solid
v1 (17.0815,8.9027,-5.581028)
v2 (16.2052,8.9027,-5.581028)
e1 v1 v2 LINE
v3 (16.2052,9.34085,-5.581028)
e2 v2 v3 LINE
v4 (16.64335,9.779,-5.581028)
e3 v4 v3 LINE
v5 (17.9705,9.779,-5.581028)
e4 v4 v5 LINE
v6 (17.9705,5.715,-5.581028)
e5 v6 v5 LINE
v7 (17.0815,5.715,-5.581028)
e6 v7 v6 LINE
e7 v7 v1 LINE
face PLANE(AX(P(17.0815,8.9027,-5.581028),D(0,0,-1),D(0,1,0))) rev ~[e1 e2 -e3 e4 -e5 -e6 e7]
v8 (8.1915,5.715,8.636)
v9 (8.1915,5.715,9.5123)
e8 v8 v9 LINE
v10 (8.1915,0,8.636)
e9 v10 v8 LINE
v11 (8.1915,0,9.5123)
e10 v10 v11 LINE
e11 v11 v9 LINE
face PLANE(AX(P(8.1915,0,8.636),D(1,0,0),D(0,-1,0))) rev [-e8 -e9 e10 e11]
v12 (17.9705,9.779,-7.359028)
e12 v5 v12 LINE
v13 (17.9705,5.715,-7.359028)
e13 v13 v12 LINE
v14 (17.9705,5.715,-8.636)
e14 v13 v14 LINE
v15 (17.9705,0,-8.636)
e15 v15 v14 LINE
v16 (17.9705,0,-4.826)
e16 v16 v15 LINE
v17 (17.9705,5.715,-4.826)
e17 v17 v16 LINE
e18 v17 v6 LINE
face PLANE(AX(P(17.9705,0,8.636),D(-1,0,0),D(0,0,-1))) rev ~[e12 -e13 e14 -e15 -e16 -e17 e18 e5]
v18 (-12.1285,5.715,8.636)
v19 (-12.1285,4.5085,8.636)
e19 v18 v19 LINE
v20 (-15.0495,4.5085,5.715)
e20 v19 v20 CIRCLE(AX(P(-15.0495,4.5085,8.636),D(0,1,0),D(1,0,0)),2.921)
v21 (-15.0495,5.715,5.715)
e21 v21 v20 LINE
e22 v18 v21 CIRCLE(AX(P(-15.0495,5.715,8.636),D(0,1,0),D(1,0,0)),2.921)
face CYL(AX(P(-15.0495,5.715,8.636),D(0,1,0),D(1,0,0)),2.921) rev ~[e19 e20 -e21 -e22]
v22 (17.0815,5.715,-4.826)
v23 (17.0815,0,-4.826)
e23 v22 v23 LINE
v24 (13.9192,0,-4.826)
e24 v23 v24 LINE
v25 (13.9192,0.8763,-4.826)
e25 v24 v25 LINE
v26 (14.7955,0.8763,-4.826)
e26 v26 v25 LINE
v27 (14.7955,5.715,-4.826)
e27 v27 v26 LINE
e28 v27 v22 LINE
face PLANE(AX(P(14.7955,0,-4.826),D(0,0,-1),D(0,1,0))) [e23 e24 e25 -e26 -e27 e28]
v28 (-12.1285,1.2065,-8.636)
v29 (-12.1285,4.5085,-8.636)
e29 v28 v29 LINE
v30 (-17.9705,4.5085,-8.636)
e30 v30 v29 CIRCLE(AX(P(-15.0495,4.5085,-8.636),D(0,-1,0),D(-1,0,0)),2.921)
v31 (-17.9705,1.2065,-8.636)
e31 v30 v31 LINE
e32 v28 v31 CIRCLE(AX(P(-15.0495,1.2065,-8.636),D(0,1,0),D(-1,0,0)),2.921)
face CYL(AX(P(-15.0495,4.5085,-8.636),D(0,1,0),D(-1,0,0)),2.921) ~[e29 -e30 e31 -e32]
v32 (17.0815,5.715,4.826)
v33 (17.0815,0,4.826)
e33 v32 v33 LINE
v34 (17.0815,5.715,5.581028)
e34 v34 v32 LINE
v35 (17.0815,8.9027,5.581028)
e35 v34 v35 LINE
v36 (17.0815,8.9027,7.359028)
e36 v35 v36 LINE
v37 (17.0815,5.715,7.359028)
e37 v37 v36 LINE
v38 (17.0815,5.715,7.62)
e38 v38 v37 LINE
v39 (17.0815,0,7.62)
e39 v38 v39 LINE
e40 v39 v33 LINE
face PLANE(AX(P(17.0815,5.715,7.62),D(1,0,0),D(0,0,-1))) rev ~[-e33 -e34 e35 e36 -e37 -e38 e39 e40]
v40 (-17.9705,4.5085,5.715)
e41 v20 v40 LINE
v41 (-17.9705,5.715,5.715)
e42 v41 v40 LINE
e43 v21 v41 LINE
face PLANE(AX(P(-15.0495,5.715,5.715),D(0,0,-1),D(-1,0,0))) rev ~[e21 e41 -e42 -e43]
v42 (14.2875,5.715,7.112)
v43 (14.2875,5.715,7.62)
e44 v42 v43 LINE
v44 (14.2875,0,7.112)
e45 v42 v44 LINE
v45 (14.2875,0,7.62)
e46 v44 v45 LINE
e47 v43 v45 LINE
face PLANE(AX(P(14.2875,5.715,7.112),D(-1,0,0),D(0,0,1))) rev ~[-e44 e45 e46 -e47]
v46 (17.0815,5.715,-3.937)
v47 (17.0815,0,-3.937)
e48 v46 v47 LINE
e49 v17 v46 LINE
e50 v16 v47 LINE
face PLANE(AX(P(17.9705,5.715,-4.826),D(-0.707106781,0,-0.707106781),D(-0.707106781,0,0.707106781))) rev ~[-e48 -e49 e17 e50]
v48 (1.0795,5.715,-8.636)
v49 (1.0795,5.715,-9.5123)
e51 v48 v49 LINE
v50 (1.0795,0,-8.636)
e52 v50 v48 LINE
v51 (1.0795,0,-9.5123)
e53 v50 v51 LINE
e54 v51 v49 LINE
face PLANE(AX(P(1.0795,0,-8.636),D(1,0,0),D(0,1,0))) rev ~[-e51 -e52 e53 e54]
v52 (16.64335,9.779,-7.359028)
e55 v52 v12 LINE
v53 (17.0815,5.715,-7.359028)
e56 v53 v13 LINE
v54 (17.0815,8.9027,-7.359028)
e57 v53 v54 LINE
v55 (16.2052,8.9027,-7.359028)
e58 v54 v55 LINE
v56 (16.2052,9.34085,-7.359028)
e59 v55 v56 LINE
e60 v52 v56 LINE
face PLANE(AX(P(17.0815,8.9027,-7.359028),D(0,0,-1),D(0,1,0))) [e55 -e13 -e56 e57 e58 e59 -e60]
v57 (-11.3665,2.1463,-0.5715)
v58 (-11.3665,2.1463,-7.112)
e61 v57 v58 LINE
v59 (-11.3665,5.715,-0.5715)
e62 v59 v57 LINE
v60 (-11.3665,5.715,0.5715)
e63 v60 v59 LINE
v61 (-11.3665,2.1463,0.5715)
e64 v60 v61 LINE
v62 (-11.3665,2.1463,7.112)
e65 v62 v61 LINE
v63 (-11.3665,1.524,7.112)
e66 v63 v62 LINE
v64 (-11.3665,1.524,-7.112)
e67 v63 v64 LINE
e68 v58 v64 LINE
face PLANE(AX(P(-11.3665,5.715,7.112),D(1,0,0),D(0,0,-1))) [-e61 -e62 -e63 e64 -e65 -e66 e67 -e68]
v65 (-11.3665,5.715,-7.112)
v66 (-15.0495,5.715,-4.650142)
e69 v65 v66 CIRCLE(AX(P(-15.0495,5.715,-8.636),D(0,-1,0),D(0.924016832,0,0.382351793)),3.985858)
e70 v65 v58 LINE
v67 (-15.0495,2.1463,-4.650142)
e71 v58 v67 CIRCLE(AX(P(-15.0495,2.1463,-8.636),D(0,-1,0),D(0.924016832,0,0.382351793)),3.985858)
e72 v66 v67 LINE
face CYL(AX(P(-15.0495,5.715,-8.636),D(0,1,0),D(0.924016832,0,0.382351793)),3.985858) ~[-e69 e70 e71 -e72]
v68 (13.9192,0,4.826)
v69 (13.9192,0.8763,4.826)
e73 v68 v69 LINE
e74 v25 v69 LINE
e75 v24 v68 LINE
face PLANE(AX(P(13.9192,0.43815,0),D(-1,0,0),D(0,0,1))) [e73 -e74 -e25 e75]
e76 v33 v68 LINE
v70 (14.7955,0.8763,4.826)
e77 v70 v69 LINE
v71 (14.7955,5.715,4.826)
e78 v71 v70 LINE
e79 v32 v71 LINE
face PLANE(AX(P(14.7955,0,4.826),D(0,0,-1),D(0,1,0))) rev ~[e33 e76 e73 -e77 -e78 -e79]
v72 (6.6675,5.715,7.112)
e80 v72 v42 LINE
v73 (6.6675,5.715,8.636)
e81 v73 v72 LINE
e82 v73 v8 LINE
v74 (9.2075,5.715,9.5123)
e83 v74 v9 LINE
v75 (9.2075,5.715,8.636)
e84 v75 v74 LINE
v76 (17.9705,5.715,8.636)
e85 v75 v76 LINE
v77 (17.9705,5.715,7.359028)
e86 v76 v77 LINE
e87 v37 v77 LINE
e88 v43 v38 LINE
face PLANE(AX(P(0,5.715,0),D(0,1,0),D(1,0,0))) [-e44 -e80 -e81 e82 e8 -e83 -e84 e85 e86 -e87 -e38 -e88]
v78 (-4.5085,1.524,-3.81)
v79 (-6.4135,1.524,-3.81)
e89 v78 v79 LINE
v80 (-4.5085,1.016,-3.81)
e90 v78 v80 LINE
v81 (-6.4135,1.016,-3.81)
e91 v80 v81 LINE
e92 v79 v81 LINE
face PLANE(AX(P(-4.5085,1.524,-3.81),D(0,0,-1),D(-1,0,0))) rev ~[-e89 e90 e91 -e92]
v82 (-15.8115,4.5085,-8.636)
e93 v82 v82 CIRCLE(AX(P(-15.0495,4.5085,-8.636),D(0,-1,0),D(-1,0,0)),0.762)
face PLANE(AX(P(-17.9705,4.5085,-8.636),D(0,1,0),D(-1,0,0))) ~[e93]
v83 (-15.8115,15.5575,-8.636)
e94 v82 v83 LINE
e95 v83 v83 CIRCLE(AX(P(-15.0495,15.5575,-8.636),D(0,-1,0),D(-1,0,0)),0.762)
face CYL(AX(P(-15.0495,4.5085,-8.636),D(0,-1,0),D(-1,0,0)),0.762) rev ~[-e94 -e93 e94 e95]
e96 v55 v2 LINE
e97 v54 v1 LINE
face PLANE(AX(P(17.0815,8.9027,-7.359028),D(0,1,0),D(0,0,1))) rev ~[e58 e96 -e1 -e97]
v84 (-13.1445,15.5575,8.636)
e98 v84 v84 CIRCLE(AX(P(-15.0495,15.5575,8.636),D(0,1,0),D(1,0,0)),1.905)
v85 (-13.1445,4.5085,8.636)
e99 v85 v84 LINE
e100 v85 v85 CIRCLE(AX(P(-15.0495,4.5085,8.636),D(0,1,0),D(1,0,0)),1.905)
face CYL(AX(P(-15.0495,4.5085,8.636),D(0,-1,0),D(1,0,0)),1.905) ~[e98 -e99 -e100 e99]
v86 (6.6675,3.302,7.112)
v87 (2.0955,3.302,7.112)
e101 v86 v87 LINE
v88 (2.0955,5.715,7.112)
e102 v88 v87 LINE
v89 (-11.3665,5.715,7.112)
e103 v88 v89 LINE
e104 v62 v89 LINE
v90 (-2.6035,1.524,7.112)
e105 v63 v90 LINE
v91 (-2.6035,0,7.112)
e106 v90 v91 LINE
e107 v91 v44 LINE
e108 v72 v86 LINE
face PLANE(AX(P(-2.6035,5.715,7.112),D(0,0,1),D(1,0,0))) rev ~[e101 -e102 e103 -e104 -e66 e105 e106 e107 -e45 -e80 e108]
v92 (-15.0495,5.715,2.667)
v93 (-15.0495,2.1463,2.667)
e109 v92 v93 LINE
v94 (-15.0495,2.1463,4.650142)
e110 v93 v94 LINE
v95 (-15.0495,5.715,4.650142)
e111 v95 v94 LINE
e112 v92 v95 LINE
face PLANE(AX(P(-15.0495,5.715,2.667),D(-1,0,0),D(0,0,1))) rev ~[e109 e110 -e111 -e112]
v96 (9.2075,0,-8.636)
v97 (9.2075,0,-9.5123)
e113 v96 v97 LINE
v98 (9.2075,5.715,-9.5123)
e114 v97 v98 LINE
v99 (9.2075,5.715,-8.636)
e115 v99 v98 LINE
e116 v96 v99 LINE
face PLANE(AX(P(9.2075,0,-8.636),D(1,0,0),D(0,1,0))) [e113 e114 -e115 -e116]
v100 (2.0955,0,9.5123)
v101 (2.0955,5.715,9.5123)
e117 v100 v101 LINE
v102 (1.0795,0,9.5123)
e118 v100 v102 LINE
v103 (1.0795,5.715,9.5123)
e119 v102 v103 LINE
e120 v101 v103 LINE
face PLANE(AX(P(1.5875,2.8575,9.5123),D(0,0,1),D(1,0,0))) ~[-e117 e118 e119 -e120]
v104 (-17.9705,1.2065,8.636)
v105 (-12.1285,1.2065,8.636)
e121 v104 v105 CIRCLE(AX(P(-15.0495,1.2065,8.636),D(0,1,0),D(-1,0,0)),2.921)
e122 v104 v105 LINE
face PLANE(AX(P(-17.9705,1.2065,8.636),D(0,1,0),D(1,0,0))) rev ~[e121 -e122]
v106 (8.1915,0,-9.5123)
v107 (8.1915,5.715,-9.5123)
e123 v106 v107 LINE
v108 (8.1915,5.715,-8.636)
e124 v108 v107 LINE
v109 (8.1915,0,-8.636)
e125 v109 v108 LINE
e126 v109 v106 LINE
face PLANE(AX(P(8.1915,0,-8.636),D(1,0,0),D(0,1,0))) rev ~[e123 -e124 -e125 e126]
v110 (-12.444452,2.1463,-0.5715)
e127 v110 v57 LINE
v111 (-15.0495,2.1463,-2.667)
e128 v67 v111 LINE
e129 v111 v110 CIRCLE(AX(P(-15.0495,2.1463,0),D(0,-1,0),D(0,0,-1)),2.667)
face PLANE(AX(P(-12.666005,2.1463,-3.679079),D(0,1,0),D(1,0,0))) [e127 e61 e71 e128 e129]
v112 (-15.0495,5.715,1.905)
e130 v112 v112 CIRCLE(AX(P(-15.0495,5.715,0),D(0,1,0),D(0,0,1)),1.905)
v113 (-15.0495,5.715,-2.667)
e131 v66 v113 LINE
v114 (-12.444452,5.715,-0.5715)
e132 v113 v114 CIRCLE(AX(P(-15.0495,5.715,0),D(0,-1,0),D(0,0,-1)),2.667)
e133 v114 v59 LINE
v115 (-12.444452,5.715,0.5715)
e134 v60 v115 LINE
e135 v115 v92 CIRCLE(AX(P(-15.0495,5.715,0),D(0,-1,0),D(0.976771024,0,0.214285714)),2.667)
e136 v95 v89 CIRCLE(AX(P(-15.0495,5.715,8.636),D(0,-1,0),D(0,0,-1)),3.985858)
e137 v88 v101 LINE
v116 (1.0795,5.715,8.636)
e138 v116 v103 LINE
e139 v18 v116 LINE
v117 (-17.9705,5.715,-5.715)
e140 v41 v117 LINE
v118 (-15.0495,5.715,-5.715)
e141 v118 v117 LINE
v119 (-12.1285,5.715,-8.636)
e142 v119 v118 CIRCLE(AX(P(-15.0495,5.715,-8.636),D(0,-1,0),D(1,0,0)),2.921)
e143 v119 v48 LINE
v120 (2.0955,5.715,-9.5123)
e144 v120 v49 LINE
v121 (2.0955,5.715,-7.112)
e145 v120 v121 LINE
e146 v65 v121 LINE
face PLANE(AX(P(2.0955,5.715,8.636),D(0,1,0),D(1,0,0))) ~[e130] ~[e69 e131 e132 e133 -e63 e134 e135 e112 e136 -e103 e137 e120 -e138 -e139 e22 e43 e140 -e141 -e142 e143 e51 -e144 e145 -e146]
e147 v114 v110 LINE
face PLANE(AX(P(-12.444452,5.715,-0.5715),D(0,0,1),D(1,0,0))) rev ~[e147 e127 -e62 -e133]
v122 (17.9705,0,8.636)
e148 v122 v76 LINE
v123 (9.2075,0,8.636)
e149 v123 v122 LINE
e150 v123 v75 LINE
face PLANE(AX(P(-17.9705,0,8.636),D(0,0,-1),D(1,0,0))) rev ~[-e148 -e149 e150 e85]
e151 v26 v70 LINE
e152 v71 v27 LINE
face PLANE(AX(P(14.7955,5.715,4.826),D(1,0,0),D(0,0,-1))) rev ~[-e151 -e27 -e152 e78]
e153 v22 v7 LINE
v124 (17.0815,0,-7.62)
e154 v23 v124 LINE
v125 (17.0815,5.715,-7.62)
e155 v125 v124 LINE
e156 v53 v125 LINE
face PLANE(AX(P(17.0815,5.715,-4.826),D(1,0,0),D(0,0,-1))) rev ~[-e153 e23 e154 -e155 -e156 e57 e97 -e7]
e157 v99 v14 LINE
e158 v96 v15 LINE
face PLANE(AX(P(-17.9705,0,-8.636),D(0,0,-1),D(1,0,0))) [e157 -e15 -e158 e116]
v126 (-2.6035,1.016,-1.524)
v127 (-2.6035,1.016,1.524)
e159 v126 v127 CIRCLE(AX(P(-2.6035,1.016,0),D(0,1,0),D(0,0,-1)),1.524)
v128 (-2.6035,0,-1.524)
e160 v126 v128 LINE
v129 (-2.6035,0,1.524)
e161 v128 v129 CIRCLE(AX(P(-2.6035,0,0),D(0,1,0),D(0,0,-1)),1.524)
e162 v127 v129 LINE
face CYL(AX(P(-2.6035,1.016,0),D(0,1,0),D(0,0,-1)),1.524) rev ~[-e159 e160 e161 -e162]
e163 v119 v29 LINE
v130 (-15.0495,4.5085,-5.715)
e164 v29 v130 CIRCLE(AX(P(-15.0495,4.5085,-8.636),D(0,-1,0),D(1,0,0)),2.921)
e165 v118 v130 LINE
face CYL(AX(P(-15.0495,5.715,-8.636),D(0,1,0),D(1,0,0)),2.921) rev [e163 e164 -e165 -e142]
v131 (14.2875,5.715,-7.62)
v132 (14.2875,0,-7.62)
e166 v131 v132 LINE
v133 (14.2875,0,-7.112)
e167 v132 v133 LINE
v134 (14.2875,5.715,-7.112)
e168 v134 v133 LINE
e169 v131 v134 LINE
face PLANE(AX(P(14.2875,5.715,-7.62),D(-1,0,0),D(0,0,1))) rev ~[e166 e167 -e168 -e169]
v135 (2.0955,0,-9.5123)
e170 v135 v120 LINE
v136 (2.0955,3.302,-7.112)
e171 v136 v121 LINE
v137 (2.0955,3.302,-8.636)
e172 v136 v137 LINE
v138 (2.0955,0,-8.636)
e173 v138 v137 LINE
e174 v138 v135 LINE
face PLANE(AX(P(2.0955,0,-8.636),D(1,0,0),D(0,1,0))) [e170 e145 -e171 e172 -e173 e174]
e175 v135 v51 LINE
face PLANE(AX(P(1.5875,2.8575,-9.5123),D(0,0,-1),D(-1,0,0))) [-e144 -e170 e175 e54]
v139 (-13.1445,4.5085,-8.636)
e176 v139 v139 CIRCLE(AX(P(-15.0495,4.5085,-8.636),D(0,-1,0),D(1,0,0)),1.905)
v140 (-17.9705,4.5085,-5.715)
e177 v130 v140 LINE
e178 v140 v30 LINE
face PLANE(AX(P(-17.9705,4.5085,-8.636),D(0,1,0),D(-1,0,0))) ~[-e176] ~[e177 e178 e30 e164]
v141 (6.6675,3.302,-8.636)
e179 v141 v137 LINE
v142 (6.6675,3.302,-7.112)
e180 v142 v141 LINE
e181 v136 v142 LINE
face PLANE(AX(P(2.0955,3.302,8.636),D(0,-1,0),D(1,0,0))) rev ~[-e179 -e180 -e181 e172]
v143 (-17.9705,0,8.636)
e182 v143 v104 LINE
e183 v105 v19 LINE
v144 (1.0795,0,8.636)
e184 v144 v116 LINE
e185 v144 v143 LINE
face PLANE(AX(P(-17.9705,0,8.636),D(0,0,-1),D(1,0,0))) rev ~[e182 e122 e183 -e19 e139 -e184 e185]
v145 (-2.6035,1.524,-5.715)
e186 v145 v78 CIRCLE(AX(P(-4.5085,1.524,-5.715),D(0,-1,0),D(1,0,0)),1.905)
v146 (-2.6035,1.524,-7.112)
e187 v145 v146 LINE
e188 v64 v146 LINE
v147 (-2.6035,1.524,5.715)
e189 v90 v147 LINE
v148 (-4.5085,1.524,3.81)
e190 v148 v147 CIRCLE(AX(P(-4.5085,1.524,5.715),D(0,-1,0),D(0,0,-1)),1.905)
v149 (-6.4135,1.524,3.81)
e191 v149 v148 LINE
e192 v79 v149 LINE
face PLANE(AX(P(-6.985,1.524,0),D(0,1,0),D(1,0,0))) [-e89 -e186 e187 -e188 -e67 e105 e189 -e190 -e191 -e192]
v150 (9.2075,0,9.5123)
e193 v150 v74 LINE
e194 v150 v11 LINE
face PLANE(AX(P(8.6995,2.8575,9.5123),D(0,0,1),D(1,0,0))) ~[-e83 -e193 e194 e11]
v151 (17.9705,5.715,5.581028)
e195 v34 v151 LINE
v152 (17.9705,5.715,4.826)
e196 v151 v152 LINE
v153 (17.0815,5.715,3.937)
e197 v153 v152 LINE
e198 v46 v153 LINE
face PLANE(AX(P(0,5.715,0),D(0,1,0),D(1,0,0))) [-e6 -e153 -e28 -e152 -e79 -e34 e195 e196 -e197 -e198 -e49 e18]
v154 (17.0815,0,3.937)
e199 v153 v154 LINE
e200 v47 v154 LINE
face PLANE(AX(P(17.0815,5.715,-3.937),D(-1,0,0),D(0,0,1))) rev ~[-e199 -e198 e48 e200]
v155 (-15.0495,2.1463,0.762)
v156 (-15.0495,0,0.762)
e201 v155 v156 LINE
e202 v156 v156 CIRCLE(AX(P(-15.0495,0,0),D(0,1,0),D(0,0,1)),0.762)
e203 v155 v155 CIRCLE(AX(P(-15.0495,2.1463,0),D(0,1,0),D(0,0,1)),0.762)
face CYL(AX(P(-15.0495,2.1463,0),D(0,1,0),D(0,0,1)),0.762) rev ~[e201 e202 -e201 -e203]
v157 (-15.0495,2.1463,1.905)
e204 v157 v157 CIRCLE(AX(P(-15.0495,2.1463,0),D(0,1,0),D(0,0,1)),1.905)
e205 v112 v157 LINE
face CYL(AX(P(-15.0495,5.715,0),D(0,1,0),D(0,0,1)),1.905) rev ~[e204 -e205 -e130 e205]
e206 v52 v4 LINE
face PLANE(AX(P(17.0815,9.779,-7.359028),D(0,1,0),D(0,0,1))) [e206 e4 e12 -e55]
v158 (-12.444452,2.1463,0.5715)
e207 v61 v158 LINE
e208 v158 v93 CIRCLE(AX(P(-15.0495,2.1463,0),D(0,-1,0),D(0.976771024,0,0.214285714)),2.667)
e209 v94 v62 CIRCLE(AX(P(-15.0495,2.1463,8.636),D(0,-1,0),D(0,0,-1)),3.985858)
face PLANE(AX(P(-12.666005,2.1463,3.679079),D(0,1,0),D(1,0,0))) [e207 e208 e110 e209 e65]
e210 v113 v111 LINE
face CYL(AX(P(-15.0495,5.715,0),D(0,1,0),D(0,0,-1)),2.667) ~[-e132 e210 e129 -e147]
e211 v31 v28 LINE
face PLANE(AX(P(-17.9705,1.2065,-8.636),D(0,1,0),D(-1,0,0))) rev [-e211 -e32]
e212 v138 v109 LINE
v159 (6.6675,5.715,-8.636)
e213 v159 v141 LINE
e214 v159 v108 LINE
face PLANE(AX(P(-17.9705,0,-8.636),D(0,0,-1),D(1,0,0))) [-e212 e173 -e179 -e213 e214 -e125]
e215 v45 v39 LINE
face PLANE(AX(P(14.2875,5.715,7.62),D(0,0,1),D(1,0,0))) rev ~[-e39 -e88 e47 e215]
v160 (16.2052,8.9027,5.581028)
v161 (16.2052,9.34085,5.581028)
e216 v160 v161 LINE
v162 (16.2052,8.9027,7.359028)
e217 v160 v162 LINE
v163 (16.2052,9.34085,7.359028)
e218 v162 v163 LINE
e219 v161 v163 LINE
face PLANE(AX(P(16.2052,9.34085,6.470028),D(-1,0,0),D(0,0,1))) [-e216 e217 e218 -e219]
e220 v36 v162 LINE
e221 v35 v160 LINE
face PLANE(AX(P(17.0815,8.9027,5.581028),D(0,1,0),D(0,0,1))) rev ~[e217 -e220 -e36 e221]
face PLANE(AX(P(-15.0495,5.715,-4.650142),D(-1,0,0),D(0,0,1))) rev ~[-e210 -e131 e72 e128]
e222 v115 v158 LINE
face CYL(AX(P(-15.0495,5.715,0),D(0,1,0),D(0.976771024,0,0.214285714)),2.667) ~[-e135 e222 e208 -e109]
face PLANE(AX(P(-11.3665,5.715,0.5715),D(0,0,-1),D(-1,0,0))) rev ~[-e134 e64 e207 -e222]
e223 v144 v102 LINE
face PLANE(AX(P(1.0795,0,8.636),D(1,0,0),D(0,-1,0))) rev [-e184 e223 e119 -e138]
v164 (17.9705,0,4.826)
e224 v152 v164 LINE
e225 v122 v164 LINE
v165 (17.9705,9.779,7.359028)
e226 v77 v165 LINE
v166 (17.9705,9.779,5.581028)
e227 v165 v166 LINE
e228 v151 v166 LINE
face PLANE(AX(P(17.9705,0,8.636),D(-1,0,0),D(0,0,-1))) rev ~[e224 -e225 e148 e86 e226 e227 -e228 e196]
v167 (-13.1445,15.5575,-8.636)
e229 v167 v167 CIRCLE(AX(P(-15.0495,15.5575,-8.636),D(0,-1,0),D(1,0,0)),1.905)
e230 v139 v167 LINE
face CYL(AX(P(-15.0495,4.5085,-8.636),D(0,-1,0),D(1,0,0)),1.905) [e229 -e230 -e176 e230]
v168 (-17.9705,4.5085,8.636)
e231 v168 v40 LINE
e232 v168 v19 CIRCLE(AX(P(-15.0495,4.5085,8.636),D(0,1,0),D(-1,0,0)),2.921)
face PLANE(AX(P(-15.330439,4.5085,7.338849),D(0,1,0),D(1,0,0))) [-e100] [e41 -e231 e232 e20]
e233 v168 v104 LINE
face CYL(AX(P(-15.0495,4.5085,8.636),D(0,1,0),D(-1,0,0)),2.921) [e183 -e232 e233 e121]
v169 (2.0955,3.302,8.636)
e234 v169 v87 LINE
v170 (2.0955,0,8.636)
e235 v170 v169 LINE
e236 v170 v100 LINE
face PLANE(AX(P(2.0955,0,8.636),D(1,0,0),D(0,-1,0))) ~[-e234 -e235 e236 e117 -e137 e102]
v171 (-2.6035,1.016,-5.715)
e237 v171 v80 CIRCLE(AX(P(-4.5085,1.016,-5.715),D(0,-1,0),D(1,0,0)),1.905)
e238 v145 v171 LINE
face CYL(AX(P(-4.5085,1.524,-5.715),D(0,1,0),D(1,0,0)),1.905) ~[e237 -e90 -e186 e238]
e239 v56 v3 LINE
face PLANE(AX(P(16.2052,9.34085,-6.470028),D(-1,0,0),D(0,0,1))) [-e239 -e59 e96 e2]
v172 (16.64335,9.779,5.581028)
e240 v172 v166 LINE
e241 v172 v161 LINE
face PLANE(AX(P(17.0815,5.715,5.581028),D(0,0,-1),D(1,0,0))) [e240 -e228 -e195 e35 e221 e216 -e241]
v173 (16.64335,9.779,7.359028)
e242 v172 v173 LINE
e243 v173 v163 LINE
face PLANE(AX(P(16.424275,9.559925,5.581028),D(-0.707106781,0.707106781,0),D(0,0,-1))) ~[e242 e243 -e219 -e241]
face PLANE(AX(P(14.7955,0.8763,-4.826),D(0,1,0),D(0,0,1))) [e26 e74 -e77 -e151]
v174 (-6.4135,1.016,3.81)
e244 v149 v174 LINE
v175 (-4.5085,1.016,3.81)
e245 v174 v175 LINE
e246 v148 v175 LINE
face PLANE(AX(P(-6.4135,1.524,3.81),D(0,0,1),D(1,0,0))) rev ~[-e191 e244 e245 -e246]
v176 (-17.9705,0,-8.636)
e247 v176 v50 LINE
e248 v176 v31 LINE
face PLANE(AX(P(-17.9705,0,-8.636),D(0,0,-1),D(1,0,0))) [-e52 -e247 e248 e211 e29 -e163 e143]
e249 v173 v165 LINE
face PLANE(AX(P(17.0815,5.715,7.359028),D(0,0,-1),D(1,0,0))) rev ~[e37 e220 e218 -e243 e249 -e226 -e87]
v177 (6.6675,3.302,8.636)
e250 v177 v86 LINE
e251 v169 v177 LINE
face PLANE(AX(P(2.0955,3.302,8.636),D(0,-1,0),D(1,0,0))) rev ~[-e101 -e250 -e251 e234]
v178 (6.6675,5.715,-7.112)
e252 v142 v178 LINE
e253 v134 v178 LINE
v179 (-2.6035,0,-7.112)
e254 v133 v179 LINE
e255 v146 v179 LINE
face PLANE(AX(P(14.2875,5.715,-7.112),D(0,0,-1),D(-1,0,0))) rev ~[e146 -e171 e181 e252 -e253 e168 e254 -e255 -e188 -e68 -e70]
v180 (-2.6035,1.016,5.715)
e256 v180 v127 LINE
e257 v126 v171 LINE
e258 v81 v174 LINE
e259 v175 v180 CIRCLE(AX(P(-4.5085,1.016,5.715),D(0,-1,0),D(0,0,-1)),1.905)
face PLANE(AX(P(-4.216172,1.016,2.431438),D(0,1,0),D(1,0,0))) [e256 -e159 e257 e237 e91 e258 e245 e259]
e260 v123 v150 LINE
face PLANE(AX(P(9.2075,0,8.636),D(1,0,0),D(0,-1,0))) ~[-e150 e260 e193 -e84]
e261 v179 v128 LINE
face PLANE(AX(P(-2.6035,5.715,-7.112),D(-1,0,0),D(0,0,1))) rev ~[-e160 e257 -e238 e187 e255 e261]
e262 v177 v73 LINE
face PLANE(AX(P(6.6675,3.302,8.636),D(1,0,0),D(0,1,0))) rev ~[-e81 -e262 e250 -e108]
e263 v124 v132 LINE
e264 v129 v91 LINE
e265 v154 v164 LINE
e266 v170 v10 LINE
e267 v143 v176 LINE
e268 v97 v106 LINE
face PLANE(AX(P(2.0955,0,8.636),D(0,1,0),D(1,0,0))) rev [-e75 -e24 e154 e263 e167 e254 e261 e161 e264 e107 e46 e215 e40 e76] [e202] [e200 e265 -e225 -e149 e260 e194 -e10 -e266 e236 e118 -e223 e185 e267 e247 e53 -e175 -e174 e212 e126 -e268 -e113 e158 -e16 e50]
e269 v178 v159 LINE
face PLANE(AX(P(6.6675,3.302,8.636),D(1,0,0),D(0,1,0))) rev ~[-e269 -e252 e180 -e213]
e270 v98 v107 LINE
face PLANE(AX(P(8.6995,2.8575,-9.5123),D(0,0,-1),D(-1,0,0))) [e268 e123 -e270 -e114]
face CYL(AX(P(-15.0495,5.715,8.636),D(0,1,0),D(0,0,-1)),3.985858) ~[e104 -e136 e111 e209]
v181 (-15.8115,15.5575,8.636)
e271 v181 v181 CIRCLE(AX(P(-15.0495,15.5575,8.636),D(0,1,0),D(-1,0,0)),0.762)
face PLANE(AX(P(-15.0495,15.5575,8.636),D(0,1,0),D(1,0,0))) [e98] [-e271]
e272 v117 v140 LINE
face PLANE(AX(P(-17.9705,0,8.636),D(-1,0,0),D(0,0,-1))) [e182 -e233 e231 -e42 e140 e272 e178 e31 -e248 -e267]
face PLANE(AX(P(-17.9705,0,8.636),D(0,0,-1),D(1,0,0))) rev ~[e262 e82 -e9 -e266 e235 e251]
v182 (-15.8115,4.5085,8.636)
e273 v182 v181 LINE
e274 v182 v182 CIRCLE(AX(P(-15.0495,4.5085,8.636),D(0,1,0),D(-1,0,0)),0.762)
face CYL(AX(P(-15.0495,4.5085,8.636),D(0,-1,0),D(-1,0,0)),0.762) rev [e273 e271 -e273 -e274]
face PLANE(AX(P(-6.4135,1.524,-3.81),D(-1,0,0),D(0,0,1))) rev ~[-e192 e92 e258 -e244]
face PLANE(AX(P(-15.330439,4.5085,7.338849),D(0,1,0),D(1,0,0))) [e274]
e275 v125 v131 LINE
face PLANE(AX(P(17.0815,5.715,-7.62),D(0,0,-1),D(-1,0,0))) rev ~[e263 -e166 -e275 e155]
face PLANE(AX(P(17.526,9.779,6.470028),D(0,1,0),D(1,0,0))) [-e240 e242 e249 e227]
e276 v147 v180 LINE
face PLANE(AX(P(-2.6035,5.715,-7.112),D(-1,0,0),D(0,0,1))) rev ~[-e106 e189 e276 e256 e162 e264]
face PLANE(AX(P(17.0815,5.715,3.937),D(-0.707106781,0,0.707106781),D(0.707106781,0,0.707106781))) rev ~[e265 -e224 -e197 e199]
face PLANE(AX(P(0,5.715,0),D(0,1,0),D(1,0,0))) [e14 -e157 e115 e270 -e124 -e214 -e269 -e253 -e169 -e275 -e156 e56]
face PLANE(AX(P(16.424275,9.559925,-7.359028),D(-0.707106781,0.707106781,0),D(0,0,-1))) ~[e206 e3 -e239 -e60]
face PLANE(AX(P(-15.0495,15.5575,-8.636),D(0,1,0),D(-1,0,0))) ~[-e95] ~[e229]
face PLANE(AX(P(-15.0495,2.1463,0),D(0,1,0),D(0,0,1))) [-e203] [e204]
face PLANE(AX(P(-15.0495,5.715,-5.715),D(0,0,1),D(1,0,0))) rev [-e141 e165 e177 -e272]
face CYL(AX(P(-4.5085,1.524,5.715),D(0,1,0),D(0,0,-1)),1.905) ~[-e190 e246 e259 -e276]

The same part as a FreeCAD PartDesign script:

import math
import FreeCAD as App
import Part
import Sketcher
from FreeCAD import Vector
Q = App.Units.Quantity


def edges_at(feature, points):
    """Names of the edges that pass closest to the given points."""
    edges = feature.Shape.Edges
    near = lambda p: min(range(len(edges)), key=lambda i: edges[i].distToShape(Part.Vertex(*p))[0])
    return sorted({f"Edge{near(p) + 1}" for p in points})


def add_polygon(sketch, points):
    """Adds a closed chain of lines whose ends are joined by coincident constraints."""
    first, n = sketch.GeometryCount, len(points)
    for a, b in zip(points, points[1:] + points[:1]):
        sketch.addGeometry(Part.LineSegment(App.Vector(*a, 0), App.Vector(*b, 0)), False)
    for i in range(n):
        sketch.addConstraint(Sketcher.Constraint("Coincident", first + i, 2, first + (i + 1) % n, 1))

doc = App.newDocument("Part")
body = doc.addObject("PartDesign::Body", "Body")

sketch1 = doc.addObject("Sketcher::SketchObject", "Sketch")
body.addObject(sketch1)
sketch1.AttachmentSupport = (doc.XZ_Plane, [""])
sketch1.MapMode = "FlatFace"
add_polygon(sketch1, [(-17.9705, -8.636), (-17.9705, 8.636), (17.9705, 8.636), (17.9705, -8.636)])
sketch1.addConstraint([
    Sketcher.Constraint("Vertical", 0),
    Sketcher.Constraint("Horizontal", 1),
    Sketcher.Constraint("Vertical", 2),
    Sketcher.Constraint("Horizontal", 3),
    Sketcher.Constraint("Symmetric", 0, 2, 2, 2, -1, 1),
    Sketcher.Constraint("DistanceY", 0, 1, 0, 2, Q("0.68 in")),
    Sketcher.Constraint("DistanceX", 1, 1, 1, 2, Q("1.415 in")),
])
pad1 = doc.addObject("PartDesign::Pad", "Pad")
body.addObject(pad1)
pad1.Profile = sketch1
pad1.Length = Q("0.225 in")
pad1.Reversed = True

sketch2 = doc.addObject("Sketcher::SketchObject", "Sketch001")
body.addObject(sketch2)
sketch2.AttachmentSupport = (doc.XY_Plane, [""])
sketch2.MapMode = "FlatFace"
sketch2.AttachmentOffset = App.Placement(Vector(0, 0, 0.34 * 25.4), App.Rotation())
add_polygon(sketch2, [(2.0955, 5.715), (2.0955, 3.302), (6.6675, 3.302), (6.6675, 5.715)])
sketch2.addConstraint([
    Sketcher.Constraint("Vertical", 0),
    Sketcher.Constraint("Horizontal", 1),
    Sketcher.Constraint("Vertical", 2),
    Sketcher.Constraint("Horizontal", 3),
    Sketcher.Constraint("DistanceX", 1, 1, 1, 2, Q("0.18 in")),
    Sketcher.Constraint("DistanceY", 0, 2, 0, 1, Q("0.095 in")),
    Sketcher.Constraint("DistanceY", -1, 1, 0, 2, Q("0.13 in")),
    Sketcher.Constraint("DistanceX", -1, 1, 0, 2, Q("0.0825 in")),
])
pocket1 = doc.addObject("PartDesign::Pocket", "Pocket")
body.addObject(pocket1)
pocket1.Profile = sketch2
pocket1.Type = "ThroughAll"

sketch3 = doc.addObject("Sketcher::SketchObject", "Sketch002")
body.addObject(sketch3)
sketch3.AttachmentSupport = (doc.XZ_Plane, [""])
sketch3.MapMode = "FlatFace"
sketch3.AttachmentOffset = App.Placement(Vector(0, 0, -0.225 * 25.4), App.Rotation())
add_polygon(sketch3, [(-2.6035, -7.112), (-2.6035, 7.112), (14.2875, 7.112), (14.2875, 7.62), (17.0815, 7.62), (17.0815, 4.826), (14.7955, 4.826), (14.7955, -4.826), (17.0815, -4.826), (17.0815, -7.62), (14.2875, -7.62), (14.2875, -7.112)])
add_polygon(sketch3, [(17.0815, 3.937), (17.9705, 4.826), (17.9705, -4.826), (17.0815, -3.937)])
sketch3.addConstraint([
    Sketcher.Constraint("Vertical", 0),
    Sketcher.Constraint("Horizontal", 1),
    Sketcher.Constraint("Vertical", 2),
    Sketcher.Constraint("Horizontal", 3),
    Sketcher.Constraint("Vertical", 4),
    Sketcher.Constraint("Horizontal", 5),
    Sketcher.Constraint("Vertical", 6),
    Sketcher.Constraint("Horizontal", 7),
    Sketcher.Constraint("Vertical", 8),
    Sketcher.Constraint("Horizontal", 9),
    Sketcher.Constraint("Vertical", 10),
    Sketcher.Constraint("Horizontal", 11),
    Sketcher.Constraint("Vertical", 13),
    Sketcher.Constraint("Vertical", 15),
    Sketcher.Constraint("Symmetric", 4, 2, 7, 2, -1),
    Sketcher.Constraint("Symmetric", 2, 2, 9, 2, -1),
    Sketcher.Constraint("Perpendicular", 12, 14),
    Sketcher.Constraint("Horizontal", 5, 2, 12, 2),
    Sketcher.Constraint("Horizontal", 7, 2, 13, 2),
    Sketcher.Constraint("Vertical", 8, 2, 14, 2),
    Sketcher.Constraint("Equal", 9, 4),
    Sketcher.Constraint("Equal", 2, 10),
    Sketcher.Constraint("Equal", 12, 14),
    Sketcher.Constraint("DistanceX", 3, 1, 3, 2, Q("0.11 in")),
    Sketcher.Constraint("DistanceX", 5, 2, 5, 1, Q("0.09 in")),
    Sketcher.Constraint("DistanceY", 0, 1, 0, 2, Q("0.56 in")),
    Sketcher.Constraint("DistanceY", 2, 1, 2, 2, Q("0.02 in")),
    Sketcher.Constraint("DistanceY", 15, 1, 15, 2, Q("0.31 in")),
    Sketcher.Constraint("DistanceX", 1, 1, 1, 2, Q("0.665 in")),
    Sketcher.Constraint("DistanceX", -1, 1, 1, 2, Q("0.5625 in")),
])
pocket2 = doc.addObject("PartDesign::Pocket", "Pocket001")
body.addObject(pocket2)
pocket2.Profile = sketch3
pocket2.Type = "ThroughAll"
pocket2.Reversed = True

sketch4 = doc.addObject("Sketcher::SketchObject", "Sketch003")
body.addObject(sketch4)
sketch4.AttachmentSupport = (doc.XZ_Plane, [""])
sketch4.MapMode = "FlatFace"
sketch4.AttachmentOffset = App.Placement(Vector(0, 0, -0.225 * 25.4), App.Rotation())
add_polygon(sketch4, [(-11.3665, -7.112), (-11.3665, 7.112), (-2.6035, 7.112), (-2.6035, -7.112)])
sketch4.addConstraint([
    Sketcher.Constraint("Vertical", 0),
    Sketcher.Constraint("Horizontal", 1),
    Sketcher.Constraint("Vertical", 2),
    Sketcher.Constraint("Horizontal", 3),
    Sketcher.Constraint("DistanceY", 0, 1, 0, 2, Q("0.56 in")),
    Sketcher.Constraint("DistanceX", 1, 1, 1, 2, Q("0.345 in")),
    Sketcher.Constraint("DistanceY", -1, 1, 0, 2, Q("0.28 in")),
    Sketcher.Constraint("DistanceX", 0, 2, -1, 1, Q("0.4475 in")),
])
pocket3 = doc.addObject("PartDesign::Pocket", "Pocket002")
body.addObject(pocket3)
pocket3.Profile = sketch4
pocket3.Length = Q("0.1 in")
pocket3.Reversed = True

sketch5 = doc.addObject("Sketcher::SketchObject", "Sketch004")
body.addObject(sketch5)
sketch5.AttachmentSupport = (doc.XZ_Plane, [""])
sketch5.MapMode = "FlatFace"
sketch5.AttachmentOffset = App.Placement(Vector(0, 0, -0.225 * 25.4), App.Rotation())
add_polygon(sketch5, [(-11.3665, -7.112), (-11.3665, 7.112), (-2.6035, 7.112), (-2.6035, -7.112)])
sketch5.addConstraint([
    Sketcher.Constraint("Vertical", 0),
    Sketcher.Constraint("Horizontal", 1),
    Sketcher.Constraint("Vertical", 2),
    Sketcher.Constraint("Horizontal", 3),
    Sketcher.Constraint("DistanceY", 0, 1, 0, 2, Q("0.56 in")),
    Sketcher.Constraint("DistanceX", 1, 1, 1, 2, Q("0.345 in")),
    Sketcher.Constraint("DistanceY", -1, 1, 0, 2, Q("0.28 in")),
    Sketcher.Constraint("DistanceX", 0, 2, -1, 1, Q("0.4475 in")),
])
pocket4 = doc.addObject("PartDesign::Pocket", "Pocket003")
body.addObject(pocket4)
pocket4.Profile = sketch5
pocket4.Length = Q("0.165 in")
pocket4.Reversed = True

sketch6 = doc.addObject("Sketcher::SketchObject", "Sketch005")
body.addObject(sketch6)
sketch6.AttachmentSupport = (doc.YZ_Plane, [""])
sketch6.MapMode = "FlatFace"
sketch6.AttachmentOffset = App.Placement(Vector(0, 0, 0.5825 * 25.4), App.Rotation())
add_polygon(sketch6, [(0.8763, -4.826), (0, -4.826), (0, 4.826), (0.8763, 4.826)])
sketch6.addConstraint([
    Sketcher.Constraint("Horizontal", 0),
    Sketcher.Constraint("Vertical", 1),
    Sketcher.Constraint("Horizontal", 2),
    Sketcher.Constraint("Vertical", 3),
    Sketcher.Constraint("Symmetric", 0, 2, 1, 2, -1, 1),
    Sketcher.Constraint("DistanceY", 1, 1, 1, 2, Q("0.38 in")),
    Sketcher.Constraint("DistanceX", 0, 2, 0, 1, Q("0.0345 in")),
])
pad2 = doc.addObject("PartDesign::Pad", "Pad001")
body.addObject(pad2)
pad2.Profile = sketch6
pad2.Length = Q("0.0345 in")
pad2.Reversed = True

sketch7 = doc.addObject("Sketcher::SketchObject", "Sketch006")
body.addObject(sketch7)
sketch7.AttachmentSupport = (doc.XZ_Plane, [""])
sketch7.MapMode = "FlatFace"
sketch7.AttachmentOffset = App.Placement(Vector(0, 0, -0.225 * 25.4), App.Rotation())
add_polygon(sketch7, [(17.0815, -7.359028), (17.0815, -5.581028), (17.9705, -5.581028), (17.9705, -7.359028)])
add_polygon(sketch7, [(17.0815, 5.581028), (17.0815, 7.359028), (17.9705, 7.359028), (17.9705, 5.581028)])
sketch7.addConstraint([
    Sketcher.Constraint("Vertical", 0),
    Sketcher.Constraint("Horizontal", 1),
    Sketcher.Constraint("Vertical", 2),
    Sketcher.Constraint("Horizontal", 3),
    Sketcher.Constraint("Vertical", 4),
    Sketcher.Constraint("Horizontal", 5),
    Sketcher.Constraint("Vertical", 6),
    Sketcher.Constraint("Horizontal", 7),
    Sketcher.Constraint("Symmetric", 3, 2, 4, 2, -1),
    Sketcher.Constraint("Symmetric", 1, 2, 6, 2, -1),
    Sketcher.Constraint("DistanceY", 0, 1, 0, 2, Q("0.07 in")),
    Sketcher.Constraint("DistanceX", 1, 1, 1, 2, Q("0.035 in")),
    Sketcher.Constraint("DistanceX", -1, 1, 0, 2, Q("0.6725 in")),
    Sketcher.Constraint("DistanceY", 0, 2, -1, 1, 5.581028),
])
pad3 = doc.addObject("PartDesign::Pad", "Pad002")
body.addObject(pad3)
pad3.Profile = sketch7
pad3.Length = Q("0.16 in")
pad3.Reversed = True

sketch8 = doc.addObject("Sketcher::SketchObject", "Sketch007")
body.addObject(sketch8)
sketch8.AttachmentSupport = (doc.YZ_Plane, [""])
sketch8.MapMode = "FlatFace"
sketch8.AttachmentOffset = App.Placement(Vector(0, 0, 0.6725 * 25.4), App.Rotation())
add_polygon(sketch8, [(9.779, -7.359028), (8.9027, -7.359028), (8.9027, -5.581028), (9.779, -5.581028)])
add_polygon(sketch8, [(9.779, 5.581028), (8.9027, 5.581028), (8.9027, 7.359028), (9.779, 7.359028)])
sketch8.addConstraint([
    Sketcher.Constraint("Horizontal", 0),
    Sketcher.Constraint("Vertical", 1),
    Sketcher.Constraint("Horizontal", 2),
    Sketcher.Constraint("Vertical", 3),
    Sketcher.Constraint("Horizontal", 4),
    Sketcher.Constraint("Vertical", 5),
    Sketcher.Constraint("Horizontal", 6),
    Sketcher.Constraint("Vertical", 7),
    Sketcher.Constraint("Symmetric", 1, 2, 4, 2, -1),
    Sketcher.Constraint("Symmetric", 3, 2, 6, 2, -1),
    Sketcher.Constraint("DistanceY", 1, 1, 1, 2, Q("0.07 in")),
    Sketcher.Constraint("DistanceX", 0, 2, 0, 1, Q("0.0345 in")),
    Sketcher.Constraint("DistanceX", -1, 1, 2, 2, Q("0.385 in")),
    Sketcher.Constraint("DistanceY", 0, 2, -1, 1, 7.359028),
])
pad4 = doc.addObject("PartDesign::Pad", "Pad003")
body.addObject(pad4)
pad4.Profile = sketch8
pad4.Length = Q("0.0345 in")
pad4.Reversed = True
doc.recompute()

chamfer = doc.addObject("PartDesign::Chamfer", "Chamfer")
body.addObject(chamfer)
chamfer.Base = (pad4, edges_at(pad4, [(16.205, 9.779, -6.47), (16.205, 9.779, 6.47)]))
chamfer.Size = 0.43815

sketch9 = doc.addObject("Sketcher::SketchObject", "Sketch008")
body.addObject(sketch9)
sketch9.AttachmentSupport = (doc.XY_Plane, [""])
sketch9.MapMode = "FlatFace"
sketch9.AttachmentOffset = App.Placement(Vector(0, 0, -0.34 * 25.4), App.Rotation())
add_polygon(sketch9, [(2.0955, 5.715), (2.0955, 0), (1.0795, 0), (1.0795, 5.715)])
add_polygon(sketch9, [(9.2075, 5.715), (9.2075, 0), (8.1915, 0), (8.1915, 5.715)])
sketch9.addConstraint([
    Sketcher.Constraint("Vertical", 0),
    Sketcher.Constraint("Horizontal", 1),
    Sketcher.Constraint("Vertical", 2),
    Sketcher.Constraint("Horizontal", 3),
    Sketcher.Constraint("Vertical", 4),
    Sketcher.Constraint("Horizontal", 5),
    Sketcher.Constraint("Vertical", 6),
    Sketcher.Constraint("Horizontal", 7),
    Sketcher.Constraint("PointOnObject", 0, 2, -1),
    Sketcher.Constraint("PointOnObject", 4, 2, -1),
    Sketcher.Constraint("Horizontal", 3, 2, 6, 2),
    Sketcher.Constraint("Equal", 3, 5),
    Sketcher.Constraint("DistanceX", 1, 2, 1, 1, Q("0.04 in")),
    Sketcher.Constraint("DistanceY", 0, 2, 0, 1, Q("0.225 in")),
    Sketcher.Constraint("DistanceX", 0, 2, 4, 2, Q("0.28 in")),
    Sketcher.Constraint("DistanceX", -1, 1, 0, 2, Q("0.0825 in")),
])
pad5 = doc.addObject("PartDesign::Pad", "Pad004")
body.addObject(pad5)
pad5.Profile = sketch9
pad5.Length = Q("0.0345 in")
pad5.Reversed = True
doc.recompute()

mirrored = doc.addObject("PartDesign::Mirrored", "Mirrored")
body.addObject(mirrored)
mirrored.Originals = [pad5]
mirrored.MirrorPlane = (doc.XY_Plane, [""])
body.Tip = mirrored

sketch10 = doc.addObject("Sketcher::SketchObject", "Sketch009")
body.addObject(sketch10)
sketch10.AttachmentSupport = (doc.XZ_Plane, [""])
sketch10.MapMode = "FlatFace"
sketch10.AttachmentOffset = App.Placement(Vector(0, 0, -0.06 * 25.4), App.Rotation())
sketch10.addGeometry([
    Part.LineSegment(Vector(-2.6035, 5.715, 0), Vector(-2.6035, -5.715, 0)),
    Part.ArcOfCircle(Part.Circle(Vector(-4.5085, -5.715, 0), Vector(0, 0, 1), 1.905), math.radians(0), math.radians(90)),
    Part.LineSegment(Vector(-4.5085, -3.81, 0), Vector(-6.4135, -3.81, 0)),
    Part.LineSegment(Vector(-6.4135, -3.81, 0), Vector(-6.4135, 3.81, 0)),
    Part.LineSegment(Vector(-6.4135, 3.81, 0), Vector(-4.5085, 3.81, 0)),
    Part.ArcOfCircle(Part.Circle(Vector(-4.5085, 5.715, 0), Vector(0, 0, 1), 1.905), math.radians(-90), math.radians(0)),
], False)
sketch10.addConstraint([
    Sketcher.Constraint("Tangent", 0, 2, 1, 1),
    Sketcher.Constraint("Tangent", 1, 2, 2, 1),
    Sketcher.Constraint("Coincident", 2, 2, 3, 1),
    Sketcher.Constraint("Coincident", 3, 2, 4, 1),
    Sketcher.Constraint("Tangent", 4, 2, 5, 1),
    Sketcher.Constraint("Tangent", 5, 2, 0, 1),
    Sketcher.Constraint("Vertical", 0),
    Sketcher.Constraint("Horizontal", 2),
    Sketcher.Constraint("Vertical", 3),
    Sketcher.Constraint("Horizontal", 4),
    Sketcher.Constraint("Equal", 1, 5),
    Sketcher.Constraint("DistanceY", 3, 1, 3, 2, Q("0.3 in")),
    Sketcher.Constraint("Radius", 1, Q("0.075 in")),
    Sketcher.Constraint("DistanceX", 2, 2, 2, 1, Q("0.075 in")),
    Sketcher.Constraint("DistanceY", 1, 2, -1, 1, Q("0.15 in")),
    Sketcher.Constraint("DistanceX", 1, 3, -1, 1, Q("0.1775 in")),
])
pocket5 = doc.addObject("PartDesign::Pocket", "Pocket004")
body.addObject(pocket5)
pocket5.Profile = sketch10
pocket5.Length = Q("0.02 in")
pocket5.Reversed = True

sketch11 = doc.addObject("Sketcher::SketchObject", "Sketch010")
body.addObject(sketch11)
sketch11.AttachmentSupport = (doc.XZ_Plane, [""])
sketch11.MapMode = "FlatFace"
sketch11.AttachmentOffset = App.Placement(Vector(0, 0, -0.04 * 25.4), App.Rotation())
sketch11.addGeometry([
    Part.LineSegment(Vector(-2.6035, 1.524, 0), Vector(-2.6035, -1.524, 0)),
    Part.ArcOfCircle(Part.Circle(Vector(-2.6035, 0, 0), Vector(0, 0, 1), 1.524), math.radians(90), math.radians(270)),
], False)
sketch11.addConstraint([
    Sketcher.Constraint("Coincident", 0, 1, 1, 1),
    Sketcher.Constraint("Coincident", 1, 2, 0, 2),
    Sketcher.Constraint("Vertical", 0),
    Sketcher.Constraint("PointOnObject", 1, 3, -1),
    Sketcher.Constraint("Vertical", 1, 3, 0, 1),
    Sketcher.Constraint("Radius", 1, Q("0.06 in")),
    Sketcher.Constraint("DistanceX", 1, 3, -1, 1, Q("0.1025 in")),
])
pocket6 = doc.addObject("PartDesign::Pocket", "Pocket005")
body.addObject(pocket6)
pocket6.Profile = sketch11
pocket6.Type = "ThroughAll"
pocket6.Reversed = True

sketch12 = doc.addObject("Sketcher::SketchObject", "Sketch011")
body.addObject(sketch12)
sketch12.AttachmentSupport = (doc.XY_Plane, [""])
sketch12.MapMode = "FlatFace"
sketch12.AttachmentOffset = App.Placement(Vector(0, 0, 0.34 * 25.4), App.Rotation())
add_polygon(sketch12, [(-17.9705, 4.5085), (-17.9705, 1.2065), (-12.1285, 1.2065), (-12.1285, 4.5085)])
sketch12.addConstraint([
    Sketcher.Constraint("Vertical", 0),
    Sketcher.Constraint("Horizontal", 1),
    Sketcher.Constraint("Vertical", 2),
    Sketcher.Constraint("Horizontal", 3),
    Sketcher.Constraint("DistanceX", 1, 1, 1, 2, Q("0.23 in")),
    Sketcher.Constraint("DistanceY", 0, 2, 0, 1, Q("0.13 in")),
    Sketcher.Constraint("DistanceX", 0, 2, -1, 1, Q("0.7075 in")),
    Sketcher.Constraint("DistanceY", -1, 1, 0, 2, Q("0.0475 in")),
])
pad6 = doc.addObject("PartDesign::Pad", "Pad005")
body.addObject(pad6)
pad6.Profile = sketch12
pad6.Length = Q("0.17 in")
doc.recompute()

mirrored2 = doc.addObject("PartDesign::Mirrored", "Mirrored001")
body.addObject(mirrored2)
mirrored2.Originals = [pad6]
mirrored2.MirrorPlane = (doc.XY_Plane, [""])
body.Tip = mirrored2

sketch13 = doc.addObject("Sketcher::SketchObject", "Sketch012")
body.addObject(sketch13)
sketch13.AttachmentSupport = (doc.XZ_Plane, [""])
sketch13.MapMode = "FlatFace"
sketch13.AttachmentOffset = App.Placement(Vector(0, 0, -0.225 * 25.4), App.Rotation())
sketch13.addGeometry([
    Part.LineSegment(Vector(-15.0495, 5.715, 0), Vector(-17.9705, 5.715, 0)),
    Part.LineSegment(Vector(-17.9705, 5.715, 0), Vector(-17.9705, 8.636, 0)),
    Part.LineSegment(Vector(-17.9705, 8.636, 0), Vector(-12.1285, 8.636, 0)),
    Part.ArcOfCircle(Part.Circle(Vector(-15.0495, 8.636, 0), Vector(0, 0, 1), 2.921), math.radians(-90), math.radians(0)),
], False)
sketch13.addConstraint([
    Sketcher.Constraint("Coincident", 0, 2, 1, 1),
    Sketcher.Constraint("Coincident", 1, 2, 2, 1),
    Sketcher.Constraint("Coincident", 2, 2, 3, 2),
    Sketcher.Constraint("Tangent", 3, 1, 0, 1),
    Sketcher.Constraint("Horizontal", 0),
    Sketcher.Constraint("Vertical", 1),
    Sketcher.Constraint("Horizontal", 2),
    Sketcher.Constraint("Horizontal", 3, 3, 1, 2),
    Sketcher.Constraint("Equal", 0, 1),
    Sketcher.Constraint("Radius", 3, Q("0.115 in")),
    Sketcher.Constraint("DistanceY", -1, 1, 3, 3, Q("0.34 in")),
    Sketcher.Constraint("DistanceX", 3, 3, -1, 1, Q("0.5925 in")),
])
pocket7 = doc.addObject("PartDesign::Pocket", "Pocket006")
body.addObject(pocket7)
pocket7.Profile = sketch13
pocket7.Length = Q("0.0475 in")
pocket7.Reversed = True
doc.recompute()

mirrored3 = doc.addObject("PartDesign::Mirrored", "Mirrored002")
body.addObject(mirrored3)
mirrored3.Originals = [pocket7]
mirrored3.MirrorPlane = (doc.XY_Plane, [""])
body.Tip = mirrored3

sketch14 = doc.addObject("Sketcher::SketchObject", "Sketch013")
body.addObject(sketch14)
sketch14.AttachmentSupport = (doc.XZ_Plane, [""])
sketch14.MapMode = "FlatFace"
sketch14.AttachmentOffset = App.Placement(Vector(0, 0, -0.1775 * 25.4), App.Rotation())
sketch14.addGeometry([
    Part.LineSegment(Vector(-12.1285, 12.954, 0), Vector(-12.1285, 8.636, 0)),
    Part.ArcOfCircle(Part.Circle(Vector(-15.0495, 8.636, 0), Vector(0, 0, 1), 2.921), math.radians(0), math.radians(180)),
    Part.LineSegment(Vector(-17.9705, 8.636, 0), Vector(-17.9705, 12.954, 0)),
    Part.LineSegment(Vector(-17.9705, 12.954, 0), Vector(-12.1285, 12.954, 0)),
], False)
sketch14.addConstraint([
    Sketcher.Constraint("Tangent", 0, 2, 1, 1),
    Sketcher.Constraint("Tangent", 1, 2, 2, 1),
    Sketcher.Constraint("Coincident", 2, 2, 3, 1),
    Sketcher.Constraint("Coincident", 3, 2, 0, 1),
    Sketcher.Constraint("Vertical", 0),
    Sketcher.Constraint("Vertical", 2),
    Sketcher.Constraint("Horizontal", 3),
    Sketcher.Constraint("Radius", 1, Q("0.115 in")),
    Sketcher.Constraint("DistanceY", 0, 2, 0, 1, Q("0.17 in")),
    Sketcher.Constraint("DistanceY", -1, 1, 1, 3, Q("0.34 in")),
    Sketcher.Constraint("DistanceX", 1, 3, -1, 1, Q("0.5925 in")),
])
pocket8 = doc.addObject("PartDesign::Pocket", "Pocket007")
body.addObject(pocket8)
pocket8.Profile = sketch14
pocket8.Type = "ThroughAll"
pocket8.Reversed = True
doc.recompute()

mirrored4 = doc.addObject("PartDesign::Mirrored", "Mirrored003")
body.addObject(mirrored4)
mirrored4.Originals = [pocket8]
mirrored4.MirrorPlane = (doc.XY_Plane, [""])
body.Tip = mirrored4

sketch15 = doc.addObject("Sketcher::SketchObject", "Sketch014")
body.addObject(sketch15)
sketch15.AttachmentSupport = (doc.XZ_Plane, [""])
sketch15.MapMode = "FlatFace"
sketch15.AttachmentOffset = App.Placement(Vector(0, 0, -0.1775 * 25.4), App.Rotation())
sketch15.addGeometry([
    Part.Circle(Vector(-15.0495, 8.636, 0), Vector(0, 0, 1), 1.905),
    Part.Circle(Vector(-15.0495, 8.636, 0), Vector(0, 0, 1), 0.762),
], False)
sketch15.addConstraint([
    Sketcher.Constraint("Coincident", 1, 3, 0, 3),
    Sketcher.Constraint("Diameter", 0, Q("0.15 in")),
    Sketcher.Constraint("Diameter", 1, Q("0.06 in")),
    Sketcher.Constraint("DistanceY", -1, 1, 0, 3, Q("0.34 in")),
    Sketcher.Constraint("DistanceX", 0, 3, -1, 1, Q("0.5925 in")),
])
pad7 = doc.addObject("PartDesign::Pad", "Pad006")
body.addObject(pad7)
pad7.Profile = sketch15
pad7.Length = Q("0.435 in")
pad7.Reversed = True
doc.recompute()

mirrored5 = doc.addObject("PartDesign::Mirrored", "Mirrored004")
body.addObject(mirrored5)
mirrored5.Originals = [pad7]
mirrored5.MirrorPlane = (doc.XY_Plane, [""])
body.Tip = mirrored5

sketch16 = doc.addObject("Sketcher::SketchObject", "Sketch015")
body.addObject(sketch16)
sketch16.AttachmentSupport = (doc.XZ_Plane, [""])
sketch16.MapMode = "FlatFace"
sketch16.AttachmentOffset = App.Placement(Vector(0, 0, -0.225 * 25.4), App.Rotation())
sketch16.addGeometry([
    Part.LineSegment(Vector(-12.444452, -0.5715, 0), Vector(-11.3665, -0.5715, 0)),
    Part.LineSegment(Vector(-11.3665, -0.5715, 0), Vector(-11.3665, -7.112, 0)),
    Part.ArcOfCircle(Part.Circle(Vector(-15.0495, -8.636, 0), Vector(0, 0, 1), 3.985858), math.radians(22.479434), math.radians(90)),
    Part.LineSegment(Vector(-15.0495, -4.650142, 0), Vector(-15.0495, -2.667, 0)),
    Part.ArcOfCircle(Part.Circle(Vector(-15.0495, 0, 0), Vector(0, 0, 1), 2.667), math.radians(-90), math.radians(-12.373625)),
    Part.LineSegment(Vector(-11.3665, 7.112, 0), Vector(-11.3665, 0.5715, 0)),
    Part.LineSegment(Vector(-11.3665, 0.5715, 0), Vector(-12.444452, 0.5715, 0)),
    Part.ArcOfCircle(Part.Circle(Vector(-15.0495, 0, 0), Vector(0, 0, 1), 2.667), math.radians(12.373625), math.radians(90)),
    Part.LineSegment(Vector(-15.0495, 2.667, 0), Vector(-15.0495, 4.650142, 0)),
    Part.ArcOfCircle(Part.Circle(Vector(-15.0495, 8.636, 0), Vector(0, 0, 1), 3.985858), math.radians(-90), math.radians(-22.479434)),
    Part.Circle(Vector(-15.0495, 0, 0), Vector(0, 0, 1), 1.905),
], False)
sketch16.addConstraint([
    Sketcher.Constraint("Coincident", 0, 2, 1, 1),
    Sketcher.Constraint("Coincident", 1, 2, 2, 1),
    Sketcher.Constraint("Coincident", 2, 2, 3, 1),
    Sketcher.Constraint("Coincident", 3, 2, 4, 1),
    Sketcher.Constraint("Coincident", 4, 2, 0, 1),
    Sketcher.Constraint("Coincident", 5, 2, 6, 1),
    Sketcher.Constraint("Coincident", 6, 2, 7, 1),
    Sketcher.Constraint("Coincident", 7, 2, 8, 1),
    Sketcher.Constraint("Coincident", 8, 2, 9, 1),
    Sketcher.Constraint("Coincident", 9, 2, 5, 1),
    Sketcher.Constraint("Horizontal", 0),
    Sketcher.Constraint("Vertical", 1),
    Sketcher.Constraint("Vertical", 3),
    Sketcher.Constraint("Vertical", 5),
    Sketcher.Constraint("Horizontal", 6),
    Sketcher.Constraint("Vertical", 8),
    Sketcher.Constraint("Coincident", 7, 3, 4, 3),
    Sketcher.Constraint("Coincident", 10, 3, 4, 3),
    Sketcher.Constraint("Equal", 4, 7),
    Sketcher.Constraint("Equal", 2, 9),
    Sketcher.Constraint("Symmetric", 2, 3, 9, 3, -1),
    Sketcher.Constraint("Symmetric", 0, 2, 5, 2, -1),
    Sketcher.Constraint("Symmetric", 3, 2, 7, 2, -1),
    Sketcher.Constraint("Vertical", 2, 3, 4, 3),
    Sketcher.Constraint("Vertical", 10, 3, 2, 2),
    Sketcher.Constraint("Diameter", 10, Q("0.15 in")),
    Sketcher.Constraint("Radius", 4, Q("0.105 in")),
    Sketcher.Constraint("DistanceY", 2, 3, -1, 1, Q("0.34 in")),
    Sketcher.Constraint("DistanceY", 1, 2, -1, 1, Q("0.28 in")),
    Sketcher.Constraint("DistanceY", 1, 2, 1, 1, Q("0.2575 in")),
    Sketcher.Constraint("Radius", 2, 3.985858),
    Sketcher.Constraint("DistanceX", 2, 3, -1, 1, Q("0.5925 in")),
])
pocket9 = doc.addObject("PartDesign::Pocket", "Pocket008")
body.addObject(pocket9)
pocket9.Profile = sketch16
pocket9.Length = Q("0.1405 in")
pocket9.Reversed = True

sketch17 = doc.addObject("Sketcher::SketchObject", "Sketch016")
body.addObject(sketch17)
sketch17.AttachmentSupport = (doc.XZ_Plane, [""])
sketch17.MapMode = "FlatFace"
sketch17.AttachmentOffset = App.Placement(Vector(0, 0, -0.0845 * 25.4), App.Rotation())
sketch17.addGeometry(Part.Circle(Vector(-15.0495, 0, 0), Vector(0, 0, 1), 0.762), False)
sketch17.addConstraint([
    Sketcher.Constraint("PointOnObject", 0, 3, -1),
    Sketcher.Constraint("Diameter", 0, Q("0.06 in")),
    Sketcher.Constraint("DistanceX", 0, 3, -1, 1, Q("0.5925 in")),
])
pocket10 = doc.addObject("PartDesign::Pocket", "Pocket009")
body.addObject(pocket10)
pocket10.Profile = sketch17
pocket10.Type = "ThroughAll"
pocket10.Reversed = True

doc.recompute()
